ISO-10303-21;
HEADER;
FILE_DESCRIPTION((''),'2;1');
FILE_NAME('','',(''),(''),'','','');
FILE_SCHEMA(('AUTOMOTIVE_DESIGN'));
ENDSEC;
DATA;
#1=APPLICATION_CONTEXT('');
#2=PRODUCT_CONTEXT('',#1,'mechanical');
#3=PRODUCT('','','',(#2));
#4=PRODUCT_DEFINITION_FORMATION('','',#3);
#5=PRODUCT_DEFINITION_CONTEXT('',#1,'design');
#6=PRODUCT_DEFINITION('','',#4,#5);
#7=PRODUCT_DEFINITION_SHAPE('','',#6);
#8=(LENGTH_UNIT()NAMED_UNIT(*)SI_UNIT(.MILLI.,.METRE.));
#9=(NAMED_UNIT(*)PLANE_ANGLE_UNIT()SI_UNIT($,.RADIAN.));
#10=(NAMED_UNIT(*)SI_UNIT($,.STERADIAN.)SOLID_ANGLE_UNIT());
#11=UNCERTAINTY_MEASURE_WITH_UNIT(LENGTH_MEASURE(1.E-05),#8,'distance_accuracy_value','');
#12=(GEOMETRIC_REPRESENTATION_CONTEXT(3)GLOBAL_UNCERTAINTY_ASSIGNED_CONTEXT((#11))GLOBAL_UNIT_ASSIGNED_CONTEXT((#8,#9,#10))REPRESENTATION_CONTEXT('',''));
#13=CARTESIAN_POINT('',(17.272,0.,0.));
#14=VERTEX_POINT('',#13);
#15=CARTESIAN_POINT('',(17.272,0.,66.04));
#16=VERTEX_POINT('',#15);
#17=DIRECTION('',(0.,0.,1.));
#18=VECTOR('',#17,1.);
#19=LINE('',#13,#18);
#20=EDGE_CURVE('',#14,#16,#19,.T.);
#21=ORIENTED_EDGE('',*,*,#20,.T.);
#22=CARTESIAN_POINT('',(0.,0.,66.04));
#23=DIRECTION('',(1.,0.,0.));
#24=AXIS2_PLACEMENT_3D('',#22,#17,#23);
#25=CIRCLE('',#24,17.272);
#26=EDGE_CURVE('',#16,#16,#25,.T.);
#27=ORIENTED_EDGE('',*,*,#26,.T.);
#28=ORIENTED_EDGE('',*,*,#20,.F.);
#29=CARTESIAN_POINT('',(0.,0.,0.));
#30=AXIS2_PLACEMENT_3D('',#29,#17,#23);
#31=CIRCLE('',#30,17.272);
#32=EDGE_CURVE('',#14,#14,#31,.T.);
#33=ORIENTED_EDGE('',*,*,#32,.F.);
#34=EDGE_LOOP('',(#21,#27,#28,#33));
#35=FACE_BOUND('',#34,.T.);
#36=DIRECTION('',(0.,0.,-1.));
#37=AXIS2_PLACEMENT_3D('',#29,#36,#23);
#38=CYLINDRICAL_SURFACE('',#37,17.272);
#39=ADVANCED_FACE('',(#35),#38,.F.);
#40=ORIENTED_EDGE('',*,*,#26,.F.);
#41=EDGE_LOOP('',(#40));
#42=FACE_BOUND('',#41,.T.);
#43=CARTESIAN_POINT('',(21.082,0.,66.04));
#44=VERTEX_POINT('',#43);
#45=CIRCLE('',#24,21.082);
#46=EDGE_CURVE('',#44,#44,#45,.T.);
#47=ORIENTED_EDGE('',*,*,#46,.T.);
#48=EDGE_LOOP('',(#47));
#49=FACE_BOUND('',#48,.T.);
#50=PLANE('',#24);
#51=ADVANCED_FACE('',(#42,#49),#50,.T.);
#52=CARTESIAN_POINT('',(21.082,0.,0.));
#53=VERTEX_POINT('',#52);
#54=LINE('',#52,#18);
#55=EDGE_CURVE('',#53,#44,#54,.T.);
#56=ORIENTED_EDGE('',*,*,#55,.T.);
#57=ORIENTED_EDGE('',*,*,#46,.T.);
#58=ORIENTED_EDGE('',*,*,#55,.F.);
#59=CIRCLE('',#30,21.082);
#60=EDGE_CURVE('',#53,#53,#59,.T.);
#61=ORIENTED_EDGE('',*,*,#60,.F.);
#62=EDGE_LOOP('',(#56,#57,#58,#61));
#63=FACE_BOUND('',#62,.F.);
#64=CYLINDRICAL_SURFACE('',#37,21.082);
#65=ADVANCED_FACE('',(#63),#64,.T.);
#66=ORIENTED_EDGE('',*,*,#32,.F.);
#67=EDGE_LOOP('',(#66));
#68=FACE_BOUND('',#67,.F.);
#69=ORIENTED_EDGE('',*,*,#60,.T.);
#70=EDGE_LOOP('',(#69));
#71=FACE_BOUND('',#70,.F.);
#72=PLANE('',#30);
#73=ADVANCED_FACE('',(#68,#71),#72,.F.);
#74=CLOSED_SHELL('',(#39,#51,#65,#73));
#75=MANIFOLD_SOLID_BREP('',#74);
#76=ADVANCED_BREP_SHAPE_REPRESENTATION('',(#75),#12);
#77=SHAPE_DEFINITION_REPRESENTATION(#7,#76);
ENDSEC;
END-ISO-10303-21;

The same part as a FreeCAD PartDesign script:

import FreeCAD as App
import Part
import Sketcher
Q = App.Units.Quantity

doc = App.newDocument("Part")
params = doc.addObject("Spreadsheet::Sheet", "Params")
for row, (alias, value) in enumerate([
    ("sketch1_diameter", "1.66 in"),
    ("sketch1_diameter2", "1.36 in"),
    ("pad1_length", "2.6 in"),
], start=1):
    params.set(f"A{row}", alias)
    params.set(f"B{row}", "=" + value)
    params.setAlias(f"B{row}", alias)

body = doc.addObject("PartDesign::Body", "Body")

# Sketch on XY plane
sketch1 = body.newObject("Sketcher::SketchObject", "Sketch")
sketch1.AttachmentSupport = (doc.getObject("XY_Plane"), [""])
sketch1.MapMode = "FlatFace"
sketch1.addGeometry([
    Part.Circle(App.Vector(0, 0, 0), App.Vector(0, 0, 1), 21),
    Part.Circle(App.Vector(0, 0, 0), App.Vector(0, 0, 1), 17),
], False)
sketch1.addConstraint([
    Sketcher.Constraint("Coincident", 0, 3, -1, 1),
    Sketcher.Constraint("Coincident", 1, 3, -1, 1),
    Sketcher.Constraint("Diameter", 0, Q("1.66 in")),
    Sketcher.Constraint("Diameter", 1, Q("1.36 in")),
])
sketch1.setExpression("Constraints[2]", "Params.sketch1_diameter")
sketch1.setExpression("Constraints[3]", "Params.sketch1_diameter2")
pad1 = body.newObject("PartDesign::Pad", "Pad")
pad1.Profile = sketch1
pad1.setExpression("Length", "Params.pad1_length")

doc.recompute()
